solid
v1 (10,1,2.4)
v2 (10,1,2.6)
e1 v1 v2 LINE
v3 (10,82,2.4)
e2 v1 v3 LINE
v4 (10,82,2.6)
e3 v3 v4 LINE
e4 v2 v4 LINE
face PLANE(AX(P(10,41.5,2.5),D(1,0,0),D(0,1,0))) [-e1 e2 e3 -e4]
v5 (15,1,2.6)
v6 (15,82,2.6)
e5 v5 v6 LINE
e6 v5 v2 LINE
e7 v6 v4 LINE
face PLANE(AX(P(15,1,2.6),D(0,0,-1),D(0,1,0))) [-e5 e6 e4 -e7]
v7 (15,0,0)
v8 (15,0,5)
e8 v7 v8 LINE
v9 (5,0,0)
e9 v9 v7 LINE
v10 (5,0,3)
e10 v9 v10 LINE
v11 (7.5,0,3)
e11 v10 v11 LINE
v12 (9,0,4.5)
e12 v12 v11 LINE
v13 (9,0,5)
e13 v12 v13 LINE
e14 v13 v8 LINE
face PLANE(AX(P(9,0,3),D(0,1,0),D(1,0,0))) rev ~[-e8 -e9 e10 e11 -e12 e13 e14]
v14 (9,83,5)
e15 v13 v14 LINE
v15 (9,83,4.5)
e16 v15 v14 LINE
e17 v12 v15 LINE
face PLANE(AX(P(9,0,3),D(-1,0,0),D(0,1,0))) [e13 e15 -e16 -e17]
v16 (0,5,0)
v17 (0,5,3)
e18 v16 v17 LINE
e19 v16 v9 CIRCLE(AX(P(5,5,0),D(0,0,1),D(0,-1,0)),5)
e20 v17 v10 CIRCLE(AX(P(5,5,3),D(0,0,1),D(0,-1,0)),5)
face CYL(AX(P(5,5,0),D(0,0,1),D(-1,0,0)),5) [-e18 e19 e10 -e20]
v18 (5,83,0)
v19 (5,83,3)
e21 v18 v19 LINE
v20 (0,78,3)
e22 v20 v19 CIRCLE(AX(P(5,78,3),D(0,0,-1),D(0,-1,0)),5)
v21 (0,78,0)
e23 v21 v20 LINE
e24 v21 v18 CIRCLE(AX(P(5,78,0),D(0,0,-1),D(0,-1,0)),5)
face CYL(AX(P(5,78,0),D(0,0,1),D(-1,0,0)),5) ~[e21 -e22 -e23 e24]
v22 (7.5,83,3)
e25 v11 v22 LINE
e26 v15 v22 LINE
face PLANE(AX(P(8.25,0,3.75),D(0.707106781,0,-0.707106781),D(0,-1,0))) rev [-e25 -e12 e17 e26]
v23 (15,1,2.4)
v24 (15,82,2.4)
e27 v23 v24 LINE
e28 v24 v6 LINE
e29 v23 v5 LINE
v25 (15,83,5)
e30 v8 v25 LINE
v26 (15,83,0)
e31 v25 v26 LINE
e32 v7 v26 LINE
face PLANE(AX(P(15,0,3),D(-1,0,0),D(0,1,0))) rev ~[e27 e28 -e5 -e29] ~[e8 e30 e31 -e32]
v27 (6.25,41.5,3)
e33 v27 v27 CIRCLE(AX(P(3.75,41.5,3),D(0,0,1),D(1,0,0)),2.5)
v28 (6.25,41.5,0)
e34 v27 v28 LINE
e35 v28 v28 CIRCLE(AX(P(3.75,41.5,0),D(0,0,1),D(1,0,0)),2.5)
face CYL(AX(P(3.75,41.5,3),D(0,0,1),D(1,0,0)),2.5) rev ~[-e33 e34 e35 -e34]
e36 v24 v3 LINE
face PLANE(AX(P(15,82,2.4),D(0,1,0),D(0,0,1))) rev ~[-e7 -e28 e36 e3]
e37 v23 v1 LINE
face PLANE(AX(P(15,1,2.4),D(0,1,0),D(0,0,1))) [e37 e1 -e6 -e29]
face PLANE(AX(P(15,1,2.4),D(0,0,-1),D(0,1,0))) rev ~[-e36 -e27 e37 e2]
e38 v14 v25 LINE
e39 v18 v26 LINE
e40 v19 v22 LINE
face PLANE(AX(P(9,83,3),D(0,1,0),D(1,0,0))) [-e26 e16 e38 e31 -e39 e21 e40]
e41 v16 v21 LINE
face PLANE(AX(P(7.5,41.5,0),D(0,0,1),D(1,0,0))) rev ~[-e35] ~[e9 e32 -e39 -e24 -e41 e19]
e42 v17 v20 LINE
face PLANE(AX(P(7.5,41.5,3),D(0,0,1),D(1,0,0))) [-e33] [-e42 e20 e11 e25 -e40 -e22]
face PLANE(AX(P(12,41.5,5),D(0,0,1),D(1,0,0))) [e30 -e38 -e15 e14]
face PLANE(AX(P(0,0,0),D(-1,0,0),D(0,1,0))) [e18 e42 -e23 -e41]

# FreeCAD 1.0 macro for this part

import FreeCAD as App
import Part
import Sketcher
from FreeCAD import Vector
Q = App.Units.Quantity


def edges_at(feature, points):
    """Names of the edges that pass closest to the given points."""
    edges = feature.Shape.Edges
    near = lambda p: min(range(len(edges)), key=lambda i: edges[i].distToShape(Part.Vertex(*p))[0])
    return sorted({f"Edge{near(p) + 1}" for p in points})


def add_polygon(sketch, points):
    """Adds a closed chain of lines whose ends are joined by coincident constraints."""
    first, n = sketch.GeometryCount, len(points)
    for a, b in zip(points, points[1:] + points[:1]):
        sketch.addGeometry(Part.LineSegment(App.Vector(*a, 0), App.Vector(*b, 0)), False)
    for i in range(n):
        sketch.addConstraint(Sketcher.Constraint("Coincident", first + i, 2, first + (i + 1) % n, 1))

doc = App.newDocument("Part")
params = doc.addObject("Spreadsheet::Sheet", "Params")
for row, (alias, value) in enumerate([
    ("sketch1_width", "15 mm"),
    ("sketch1_height", "83 mm"),
    ("pad1_length", "3 mm"),
    ("fillet_radius", "5 mm"),
    ("sketch2_width", "6 mm"),
    ("sketch2_height", "83 mm"),
    ("pad2_length", "2 mm"),
    ("sketch3_width", "81 mm"),
    ("sketch3_height", "0.2 mm"),
    ("pocket1_length", "5 mm"),
    ("chamfer_size", "1.5 mm"),
    ("sketch4_diameter", "5 mm"),
    ("pocket2_length", "5 mm"),
], start=1):
    params.set(f"A{row}", alias)
    params.set(f"B{row}", "=" + value)
    params.setAlias(f"B{row}", alias)

body = doc.addObject("PartDesign::Body", "Body")

# Sketch on XY plane
sketch1 = doc.addObject("Sketcher::SketchObject", "Sketch")
body.addObject(sketch1)
sketch1.AttachmentSupport = (doc.XY_Plane, [""])
sketch1.MapMode = "FlatFace"
add_polygon(sketch1, [(0, 83), (0, 0), (15, 0), (15, 83)])  # lines 0-3
sketch1.addConstraint([
    Sketcher.Constraint("Vertical", 0),
    Sketcher.Constraint("Horizontal", 1),
    Sketcher.Constraint("Vertical", 2),
    Sketcher.Constraint("Horizontal", 3),
    Sketcher.Constraint("Coincident", 0, 2, -1, 1),
    Sketcher.Constraint("DistanceX", 1, 1, 1, 2, Q("15 mm")),
    Sketcher.Constraint("DistanceY", 0, 2, 0, 1, Q("83 mm")),
])
sketch1.setExpression("Constraints[9]", "Params.sketch1_width")
sketch1.setExpression("Constraints[10]", "Params.sketch1_height")
pad1 = doc.addObject("PartDesign::Pad", "Pad")
body.addObject(pad1)
pad1.Profile = sketch1
pad1.setExpression("Length", "Params.pad1_length")
doc.recompute()

fillet = doc.addObject("PartDesign::Fillet", "Fillet")
body.addObject(fillet)
fillet.Base = (pad1, edges_at(pad1, [(0, 0, 1.5), (0, 83, 1.5)]))
fillet.setExpression("Radius", "Params.fillet_radius")

# Sketch on XY plane
sketch2 = doc.addObject("Sketcher::SketchObject", "Sketch001")
body.addObject(sketch2)
sketch2.AttachmentSupport = (doc.XY_Plane, [""])
sketch2.MapMode = "FlatFace"
sketch2.AttachmentOffset = App.Placement(Vector(0, 0, 3), App.Rotation())
add_polygon(sketch2, [(9, 83), (9, 0), (15, 0), (15, 83)])  # lines 0-3
sketch2.addConstraint([
    Sketcher.Constraint("Vertical", 0),
    Sketcher.Constraint("Horizontal", 1),
    Sketcher.Constraint("Vertical", 2),
    Sketcher.Constraint("Horizontal", 3),
    Sketcher.Constraint("PointOnObject", 0, 2, -1),
    Sketcher.Constraint("DistanceX", 1, 1, 1, 2, Q("6 mm")),
    Sketcher.Constraint("DistanceY", 0, 2, 0, 1, Q("83 mm")),
    Sketcher.Constraint("DistanceX", -1, 1, 0, 2, Q("9 mm")),
])
sketch2.setExpression("Constraints[9]", "Params.sketch2_width")
sketch2.setExpression("Constraints[10]", "Params.sketch2_height")
pad2 = doc.addObject("PartDesign::Pad", "Pad001")
body.addObject(pad2)
pad2.Profile = sketch2
pad2.setExpression("Length", "Params.pad2_length")

# Sketch on YZ plane
sketch3 = doc.addObject("Sketcher::SketchObject", "Sketch002")
body.addObject(sketch3)
sketch3.AttachmentSupport = (doc.YZ_Plane, [""])
sketch3.MapMode = "FlatFace"
sketch3.AttachmentOffset = App.Placement(Vector(0, 0, 15), App.Rotation())
add_polygon(sketch3, [(1, 2.6), (1, 2.4), (82, 2.4), (82, 2.6)])  # lines 0-3
sketch3.addConstraint([
    Sketcher.Constraint("Vertical", 0),
    Sketcher.Constraint("Horizontal", 1),
    Sketcher.Constraint("Vertical", 2),
    Sketcher.Constraint("Horizontal", 3),
    Sketcher.Constraint("DistanceX", 1, 1, 1, 2, Q("81 mm")),
    Sketcher.Constraint("DistanceY", 0, 2, 0, 1, Q("0.2 mm")),
    Sketcher.Constraint("DistanceX", -1, 1, 0, 2, Q("1 mm")),
    Sketcher.Constraint("DistanceY", -1, 1, 0, 2, Q("2.4 mm")),
])
sketch3.setExpression("Constraints[8]", "Params.sketch3_width")
sketch3.setExpression("Constraints[9]", "Params.sketch3_height")
pocket1 = doc.addObject("PartDesign::Pocket", "Pocket")
body.addObject(pocket1)
pocket1.Profile = sketch3
pocket1.setExpression("Length", "Params.pocket1_length")
doc.recompute()

chamfer = doc.addObject("PartDesign::Chamfer", "Chamfer")
body.addObject(chamfer)
chamfer.Base = (pocket1, edges_at(pocket1, [(9, 41.5, 3)]))
chamfer.setExpression("Size", "Params.chamfer_size")

# Sketch on XY plane
sketch4 = doc.addObject("Sketcher::SketchObject", "Sketch003")
body.addObject(sketch4)
sketch4.AttachmentSupport = (doc.XY_Plane, [""])
sketch4.MapMode = "FlatFace"
sketch4.AttachmentOffset = App.Placement(Vector(0, 0, 3), App.Rotation())
sketch4.addGeometry(Part.Circle(Vector(3.8, 41.5, 0), Vector(0, 0, 1), 2.5), False)
sketch4.addConstraint([
    Sketcher.Constraint("Diameter", 0, Q("5 mm")),
    Sketcher.Constraint("DistanceY", -1, 1, 0, 3, Q("41.5 mm")),
    Sketcher.Constraint("DistanceX", -1, 1, 0, 3, Q("3.75 mm")),
])
sketch4.setExpression("Constraints[0]", "Params.sketch4_diameter")
pocket2 = doc.addObject("PartDesign::Pocket", "Pocket001")
body.addObject(pocket2)
pocket2.Profile = sketch4
pocket2.setExpression("Length", "Params.pocket2_length")

doc.recompute()
